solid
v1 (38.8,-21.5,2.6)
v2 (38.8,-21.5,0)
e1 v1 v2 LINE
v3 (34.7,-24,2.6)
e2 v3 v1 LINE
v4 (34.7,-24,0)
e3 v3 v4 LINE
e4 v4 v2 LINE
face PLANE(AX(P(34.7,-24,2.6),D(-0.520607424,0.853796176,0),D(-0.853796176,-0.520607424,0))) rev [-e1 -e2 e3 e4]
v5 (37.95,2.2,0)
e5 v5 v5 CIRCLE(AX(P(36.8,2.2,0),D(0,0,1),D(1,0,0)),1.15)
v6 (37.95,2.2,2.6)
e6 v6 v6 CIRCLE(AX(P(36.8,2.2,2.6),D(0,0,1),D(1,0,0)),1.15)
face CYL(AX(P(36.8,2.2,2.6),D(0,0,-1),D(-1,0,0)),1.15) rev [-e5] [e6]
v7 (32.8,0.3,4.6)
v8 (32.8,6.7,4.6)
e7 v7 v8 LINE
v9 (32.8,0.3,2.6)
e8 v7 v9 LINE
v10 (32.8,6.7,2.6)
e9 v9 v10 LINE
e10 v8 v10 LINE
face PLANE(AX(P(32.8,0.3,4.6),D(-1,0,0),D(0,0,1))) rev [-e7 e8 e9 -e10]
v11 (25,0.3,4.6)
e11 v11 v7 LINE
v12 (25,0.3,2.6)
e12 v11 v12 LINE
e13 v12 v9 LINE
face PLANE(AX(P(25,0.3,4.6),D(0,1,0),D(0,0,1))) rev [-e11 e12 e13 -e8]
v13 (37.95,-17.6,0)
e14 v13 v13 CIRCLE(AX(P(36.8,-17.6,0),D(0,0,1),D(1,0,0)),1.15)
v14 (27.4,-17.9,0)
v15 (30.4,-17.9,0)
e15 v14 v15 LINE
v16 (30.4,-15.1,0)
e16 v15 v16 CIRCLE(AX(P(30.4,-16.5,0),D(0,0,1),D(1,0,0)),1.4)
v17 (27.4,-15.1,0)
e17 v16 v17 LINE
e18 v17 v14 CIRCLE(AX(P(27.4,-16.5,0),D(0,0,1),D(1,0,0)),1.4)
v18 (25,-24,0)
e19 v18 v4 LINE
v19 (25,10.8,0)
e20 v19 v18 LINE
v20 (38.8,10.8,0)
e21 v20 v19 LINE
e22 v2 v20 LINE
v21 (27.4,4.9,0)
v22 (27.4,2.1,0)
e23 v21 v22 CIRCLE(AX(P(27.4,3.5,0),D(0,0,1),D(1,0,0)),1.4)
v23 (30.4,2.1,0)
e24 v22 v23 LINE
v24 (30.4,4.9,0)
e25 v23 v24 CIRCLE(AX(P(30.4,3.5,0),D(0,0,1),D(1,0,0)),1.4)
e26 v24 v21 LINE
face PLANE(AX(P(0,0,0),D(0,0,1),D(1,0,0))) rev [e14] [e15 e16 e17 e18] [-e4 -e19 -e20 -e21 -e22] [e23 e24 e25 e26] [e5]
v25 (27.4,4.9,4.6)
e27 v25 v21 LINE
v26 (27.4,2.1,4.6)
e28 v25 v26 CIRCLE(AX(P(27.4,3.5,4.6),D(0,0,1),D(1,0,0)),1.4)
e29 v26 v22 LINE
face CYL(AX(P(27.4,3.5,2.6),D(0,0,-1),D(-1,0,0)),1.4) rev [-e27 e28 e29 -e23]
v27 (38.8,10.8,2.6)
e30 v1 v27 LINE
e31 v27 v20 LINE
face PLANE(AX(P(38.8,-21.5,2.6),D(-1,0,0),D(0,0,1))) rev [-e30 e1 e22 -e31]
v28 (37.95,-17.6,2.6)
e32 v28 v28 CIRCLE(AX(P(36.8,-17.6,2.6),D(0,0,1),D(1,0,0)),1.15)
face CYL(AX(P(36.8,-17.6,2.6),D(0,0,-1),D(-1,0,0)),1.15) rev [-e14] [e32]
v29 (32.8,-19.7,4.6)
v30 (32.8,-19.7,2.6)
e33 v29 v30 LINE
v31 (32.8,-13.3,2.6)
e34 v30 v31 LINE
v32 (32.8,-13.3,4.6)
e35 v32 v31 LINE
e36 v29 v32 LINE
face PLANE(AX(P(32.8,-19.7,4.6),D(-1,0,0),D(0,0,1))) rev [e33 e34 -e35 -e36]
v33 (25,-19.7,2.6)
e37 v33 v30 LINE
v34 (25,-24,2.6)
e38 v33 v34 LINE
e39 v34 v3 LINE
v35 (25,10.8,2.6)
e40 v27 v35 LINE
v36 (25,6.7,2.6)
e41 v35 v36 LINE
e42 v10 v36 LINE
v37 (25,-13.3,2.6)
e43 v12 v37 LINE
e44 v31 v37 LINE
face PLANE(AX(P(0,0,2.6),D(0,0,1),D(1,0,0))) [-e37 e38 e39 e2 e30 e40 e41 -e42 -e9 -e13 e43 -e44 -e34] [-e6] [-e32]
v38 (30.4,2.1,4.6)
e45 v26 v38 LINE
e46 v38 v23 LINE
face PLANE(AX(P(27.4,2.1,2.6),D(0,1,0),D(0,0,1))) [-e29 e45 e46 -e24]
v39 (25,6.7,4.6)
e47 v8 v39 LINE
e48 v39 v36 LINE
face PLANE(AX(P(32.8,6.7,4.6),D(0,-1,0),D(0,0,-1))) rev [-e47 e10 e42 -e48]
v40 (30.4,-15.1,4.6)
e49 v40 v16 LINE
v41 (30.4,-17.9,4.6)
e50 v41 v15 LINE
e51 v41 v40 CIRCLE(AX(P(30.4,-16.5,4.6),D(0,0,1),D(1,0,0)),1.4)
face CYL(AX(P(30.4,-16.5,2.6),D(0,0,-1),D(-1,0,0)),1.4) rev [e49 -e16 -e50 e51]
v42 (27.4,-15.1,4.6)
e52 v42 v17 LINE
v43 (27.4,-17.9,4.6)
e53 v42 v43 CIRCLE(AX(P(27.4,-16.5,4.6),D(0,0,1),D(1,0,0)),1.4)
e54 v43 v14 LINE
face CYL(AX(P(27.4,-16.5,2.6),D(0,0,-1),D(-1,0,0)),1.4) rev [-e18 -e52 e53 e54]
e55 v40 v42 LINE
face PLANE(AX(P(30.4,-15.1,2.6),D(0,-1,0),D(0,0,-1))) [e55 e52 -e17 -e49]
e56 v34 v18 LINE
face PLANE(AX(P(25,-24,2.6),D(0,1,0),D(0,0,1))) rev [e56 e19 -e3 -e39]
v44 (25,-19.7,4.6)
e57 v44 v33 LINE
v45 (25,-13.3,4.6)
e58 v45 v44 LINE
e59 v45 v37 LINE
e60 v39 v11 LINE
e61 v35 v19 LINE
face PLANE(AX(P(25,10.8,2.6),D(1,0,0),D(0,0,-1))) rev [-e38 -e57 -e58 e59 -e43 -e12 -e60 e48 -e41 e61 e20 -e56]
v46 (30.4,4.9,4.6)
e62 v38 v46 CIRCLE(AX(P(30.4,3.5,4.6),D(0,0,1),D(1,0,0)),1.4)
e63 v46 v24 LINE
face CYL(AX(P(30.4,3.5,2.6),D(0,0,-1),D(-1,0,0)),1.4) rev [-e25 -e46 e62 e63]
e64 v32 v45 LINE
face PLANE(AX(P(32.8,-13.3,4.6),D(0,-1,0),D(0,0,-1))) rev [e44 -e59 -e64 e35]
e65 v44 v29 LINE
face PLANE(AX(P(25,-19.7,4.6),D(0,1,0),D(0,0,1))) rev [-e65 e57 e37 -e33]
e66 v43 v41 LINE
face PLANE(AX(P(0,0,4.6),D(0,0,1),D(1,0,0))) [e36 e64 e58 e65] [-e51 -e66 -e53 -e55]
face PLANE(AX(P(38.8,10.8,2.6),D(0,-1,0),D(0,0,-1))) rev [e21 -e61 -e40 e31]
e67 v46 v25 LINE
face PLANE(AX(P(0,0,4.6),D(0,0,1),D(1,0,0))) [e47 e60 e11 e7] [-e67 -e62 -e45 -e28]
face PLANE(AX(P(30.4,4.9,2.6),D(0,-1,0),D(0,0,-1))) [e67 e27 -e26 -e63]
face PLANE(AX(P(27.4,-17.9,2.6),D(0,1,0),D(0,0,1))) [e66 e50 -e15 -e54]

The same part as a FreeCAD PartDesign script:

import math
import FreeCAD as App
import Part
import Sketcher

V = App.Vector

doc = App.newDocument("Part")
body = doc.addObject("PartDesign::Body", "Body")

# Sketch on XY plane
sketch1 = body.newObject("Sketcher::SketchObject", "Sketch")
sketch1.AttachmentSupport = (doc.getObject("XY_Plane"), [""])
sketch1.MapMode = "FlatFace"
sketch1.addGeometry(Part.LineSegment(V(25, -24, 0), V(34.7, -24, 0)), False)
sketch1.addGeometry(Part.LineSegment(V(34.7, -24, 0), V(38.8, -21.5, 0)), False)
sketch1.addGeometry(Part.LineSegment(V(38.8, -21.5, 0), V(38.8, 10.8, 0)), False)
sketch1.addGeometry(Part.LineSegment(V(38.8, 10.8, 0), V(25, 10.8, 0)), False)
sketch1.addGeometry(Part.LineSegment(V(25, 10.8, 0), V(25, -24, 0)), False)
sketch1.addGeometry(Part.LineSegment(V(30.4, -17.9, 0), V(27.4, -17.9, 0)), False)
sketch1.addGeometry(Part.ArcOfCircle(Part.Circle(V(27.4, -16.5, 0), V(0, 0, 1), 1.4), math.radians(90), math.radians(270)), False)
sketch1.addGeometry(Part.LineSegment(V(27.4, -15.1, 0), V(30.4, -15.1, 0)), False)
sketch1.addGeometry(Part.ArcOfCircle(Part.Circle(V(30.4, -16.5, 0), V(0, 0, 1), 1.4), math.radians(-90), math.radians(90)), False)
sketch1.addGeometry(Part.Circle(V(36.8, -17.6, 0), V(0, 0, 1), 1.1), False)
sketch1.addGeometry(Part.LineSegment(V(30.4, 2.1, 0), V(27.4, 2.1, 0)), False)
sketch1.addGeometry(Part.ArcOfCircle(Part.Circle(V(27.4, 3.5, 0), V(0, 0, 1), 1.4), math.radians(90), math.radians(270)), False)
sketch1.addGeometry(Part.LineSegment(V(27.4, 4.9, 0), V(30.4, 4.9, 0)), False)
sketch1.addGeometry(Part.ArcOfCircle(Part.Circle(V(30.4, 3.5, 0), V(0, 0, 1), 1.4), math.radians(-90), math.radians(90)), False)
sketch1.addGeometry(Part.Circle(V(36.8, 2.2, 0), V(0, 0, 1), 1.1), False)
sketch1.addConstraint(Sketcher.Constraint("Coincident", 0, 2, 1, 1))
sketch1.addConstraint(Sketcher.Constraint("Coincident", 1, 2, 2, 1))
sketch1.addConstraint(Sketcher.Constraint("Coincident", 2, 2, 3, 1))
sketch1.addConstraint(Sketcher.Constraint("Coincident", 3, 2, 4, 1))
sketch1.addConstraint(Sketcher.Constraint("Coincident", 4, 2, 0, 1))
sketch1.addConstraint(Sketcher.Constraint("Tangent", 5, 2, 6, 2))
sketch1.addConstraint(Sketcher.Constraint("Tangent", 6, 1, 7, 1))
sketch1.addConstraint(Sketcher.Constraint("Tangent", 7, 2, 8, 2))
sketch1.addConstraint(Sketcher.Constraint("Tangent", 8, 1, 5, 1))
sketch1.addConstraint(Sketcher.Constraint("Tangent", 10, 2, 11, 2))
sketch1.addConstraint(Sketcher.Constraint("Tangent", 11, 1, 12, 1))
sketch1.addConstraint(Sketcher.Constraint("Tangent", 12, 2, 13, 2))
sketch1.addConstraint(Sketcher.Constraint("Tangent", 13, 1, 10, 1))
sketch1.addConstraint(Sketcher.Constraint("Horizontal", 0))
sketch1.addConstraint(Sketcher.Constraint("Vertical", 2))
sketch1.addConstraint(Sketcher.Constraint("Horizontal", 3))
sketch1.addConstraint(Sketcher.Constraint("Vertical", 4))
sketch1.addConstraint(Sketcher.Constraint("Horizontal", 5))
sketch1.addConstraint(Sketcher.Constraint("Horizontal", 7))
sketch1.addConstraint(Sketcher.Constraint("Horizontal", 10))
sketch1.addConstraint(Sketcher.Constraint("Horizontal", 12))
sketch1.addConstraint(Sketcher.Constraint("Equal", 8, 11))
sketch1.addConstraint(Sketcher.Constraint("Equal", 9, 14))
sketch1.addConstraint(Sketcher.Constraint("Vertical", 6, 3, 11, 3))
sketch1.addConstraint(Sketcher.Constraint("Vertical", 8, 3, 13, 3))
sketch1.addConstraint(Sketcher.Constraint("Vertical", 9, 3, 14, 3))
sketch1.addConstraint(Sketcher.Constraint("Diameter", 9, 2.3))
sketch1.addConstraint(Sketcher.Constraint("Radius", 6, 1.4))
sketch1.addConstraint(Sketcher.Constraint("DistanceX", 5, 2, 5, 1, 3.0))
sketch1.addConstraint(Sketcher.Constraint("DistanceX", 0, 1, 0, 2, 9.7))
sketch1.addConstraint(Sketcher.Constraint("DistanceX", 3, 2, 3, 1, 13.8))
sketch1.addConstraint(Sketcher.Constraint("DistanceY", 2, 1, 2, 2, 32.3))
sketch1.addConstraint(Sketcher.Constraint("DistanceY", 4, 2, 4, 1, 34.8))
sketch1.addConstraint(Sketcher.Constraint("DistanceY", 0, 2, -1, 1, 24.0))
sketch1.addConstraint(Sketcher.Constraint("DistanceX", -1, 1, 3, 2, 25.0))
sketch1.addConstraint(Sketcher.Constraint("DistanceY", 6, 3, 11, 3, 20.0))
sketch1.addConstraint(Sketcher.Constraint("DistanceX", 9, 3, 1, 2, 2.0))
sketch1.addConstraint(Sketcher.Constraint("DistanceY", 1, 2, 8, 3, 5.0))
sketch1.addConstraint(Sketcher.Constraint("DistanceX", -1, 1, 6, 3, 27.4))
sketch1.addConstraint(Sketcher.Constraint("DistanceY", 9, 3, -1, 1, 17.6))
sketch1.addConstraint(Sketcher.Constraint("DistanceY", -1, 1, 14, 3, 2.2))
pad1 = body.newObject("PartDesign::Pad", "Pad")
pad1.Profile = sketch1
pad1.Length = 2.6

# Sketch on XY plane
sketch2 = body.newObject("Sketcher::SketchObject", "Sketch001")
sketch2.AttachmentSupport = (doc.getObject("XY_Plane"), [""])
sketch2.MapMode = "FlatFace"
sketch2.AttachmentOffset = App.Placement(V(0, 0, 2.6), App.Rotation())
sketch2.addGeometry(Part.LineSegment(V(25, -13.3, 0), V(25, -19.7, 0)), False)
sketch2.addGeometry(Part.LineSegment(V(25, -19.7, 0), V(32.8, -19.7, 0)), False)
sketch2.addGeometry(Part.LineSegment(V(32.8, -19.7, 0), V(32.8, -13.3, 0)), False)
sketch2.addGeometry(Part.LineSegment(V(32.8, -13.3, 0), V(25, -13.3, 0)), False)
sketch2.addGeometry(Part.LineSegment(V(30.4, -17.9, 0), V(27.4, -17.9, 0)), False)
sketch2.addGeometry(Part.ArcOfCircle(Part.Circle(V(27.4, -16.5, 0), V(0, 0, 1), 1.4), math.radians(90), math.radians(270)), False)
sketch2.addGeometry(Part.LineSegment(V(27.4, -15.1, 0), V(30.4, -15.1, 0)), False)
sketch2.addGeometry(Part.ArcOfCircle(Part.Circle(V(30.4, -16.5, 0), V(0, 0, 1), 1.4), math.radians(-90), math.radians(90)), False)
sketch2.addGeometry(Part.LineSegment(V(25, 6.7, 0), V(25, 0.3, 0)), False)
sketch2.addGeometry(Part.LineSegment(V(25, 0.3, 0), V(32.8, 0.3, 0)), False)
sketch2.addGeometry(Part.LineSegment(V(32.8, 0.3, 0), V(32.8, 6.7, 0)), False)
sketch2.addGeometry(Part.LineSegment(V(32.8, 6.7, 0), V(25, 6.7, 0)), False)
sketch2.addGeometry(Part.LineSegment(V(30.4, 2.1, 0), V(27.4, 2.1, 0)), False)
sketch2.addGeometry(Part.ArcOfCircle(Part.Circle(V(27.4, 3.5, 0), V(0, 0, 1), 1.4), math.radians(90), math.radians(270)), False)
sketch2.addGeometry(Part.LineSegment(V(27.4, 4.9, 0), V(30.4, 4.9, 0)), False)
sketch2.addGeometry(Part.ArcOfCircle(Part.Circle(V(30.4, 3.5, 0), V(0, 0, 1), 1.4), math.radians(-90), math.radians(90)), False)
sketch2.addConstraint(Sketcher.Constraint("Coincident", 0, 2, 1, 1))
sketch2.addConstraint(Sketcher.Constraint("Coincident", 1, 2, 2, 1))
sketch2.addConstraint(Sketcher.Constraint("Coincident", 2, 2, 3, 1))
sketch2.addConstraint(Sketcher.Constraint("Coincident", 3, 2, 0, 1))
sketch2.addConstraint(Sketcher.Constraint("Tangent", 4, 2, 5, 2))
sketch2.addConstraint(Sketcher.Constraint("Tangent", 5, 1, 6, 1))
sketch2.addConstraint(Sketcher.Constraint("Tangent", 6, 2, 7, 2))
sketch2.addConstraint(Sketcher.Constraint("Tangent", 7, 1, 4, 1))
sketch2.addConstraint(Sketcher.Constraint("Coincident", 8, 2, 9, 1))
sketch2.addConstraint(Sketcher.Constraint("Coincident", 9, 2, 10, 1))
sketch2.addConstraint(Sketcher.Constraint("Coincident", 10, 2, 11, 1))
sketch2.addConstraint(Sketcher.Constraint("Coincident", 11, 2, 8, 1))
sketch2.addConstraint(Sketcher.Constraint("Tangent", 12, 2, 13, 2))
sketch2.addConstraint(Sketcher.Constraint("Tangent", 13, 1, 14, 1))
sketch2.addConstraint(Sketcher.Constraint("Tangent", 14, 2, 15, 2))
sketch2.addConstraint(Sketcher.Constraint("Tangent", 15, 1, 12, 1))
sketch2.addConstraint(Sketcher.Constraint("Vertical", 0))
sketch2.addConstraint(Sketcher.Constraint("Horizontal", 1))
sketch2.addConstraint(Sketcher.Constraint("Vertical", 2))
sketch2.addConstraint(Sketcher.Constraint("Horizontal", 3))
sketch2.addConstraint(Sketcher.Constraint("Horizontal", 4))
sketch2.addConstraint(Sketcher.Constraint("Horizontal", 6))
sketch2.addConstraint(Sketcher.Constraint("Vertical", 8))
sketch2.addConstraint(Sketcher.Constraint("Horizontal", 9))
sketch2.addConstraint(Sketcher.Constraint("Vertical", 10))
sketch2.addConstraint(Sketcher.Constraint("Horizontal", 11))
sketch2.addConstraint(Sketcher.Constraint("Horizontal", 12))
sketch2.addConstraint(Sketcher.Constraint("Horizontal", 14))
sketch2.addConstraint(Sketcher.Constraint("Equal", 7, 13))
sketch2.addConstraint(Sketcher.Constraint("Vertical", 5, 3, 13, 3))
sketch2.addConstraint(Sketcher.Constraint("Vertical", 7, 3, 15, 3))
sketch2.addConstraint(Sketcher.Constraint("Vertical", 3, 2, 8, 2))
sketch2.addConstraint(Sketcher.Constraint("Vertical", 2, 2, 9, 2))
sketch2.addConstraint(Sketcher.Constraint("Equal", 2, 8))
sketch2.addConstraint(Sketcher.Constraint("Radius", 5, 1.4))
sketch2.addConstraint(Sketcher.Constraint("DistanceX", 4, 2, 4, 1, 3.0))
sketch2.addConstraint(Sketcher.Constraint("DistanceX", 1, 1, 1, 2, 7.8))
sketch2.addConstraint(Sketcher.Constraint("DistanceY", 0, 2, 0, 1, 6.4))
sketch2.addConstraint(Sketcher.Constraint("DistanceX", -1, 1, 0, 2, 25.0))
sketch2.addConstraint(Sketcher.Constraint("DistanceY", 5, 3, 13, 3, 20.0))
sketch2.addConstraint(Sketcher.Constraint("DistanceY", 2, 2, 10, 2, 20.0))
sketch2.addConstraint(Sketcher.Constraint("DistanceX", -1, 1, 5, 3, 27.4))
sketch2.addConstraint(Sketcher.Constraint("DistanceY", 5, 3, -1, 1, 16.5))
sketch2.addConstraint(Sketcher.Constraint("DistanceY", 0, 2, -1, 1, 19.7))
pad2 = body.newObject("PartDesign::Pad", "Pad001")
pad2.Profile = sketch2
pad2.Length = 2

doc.recompute()
